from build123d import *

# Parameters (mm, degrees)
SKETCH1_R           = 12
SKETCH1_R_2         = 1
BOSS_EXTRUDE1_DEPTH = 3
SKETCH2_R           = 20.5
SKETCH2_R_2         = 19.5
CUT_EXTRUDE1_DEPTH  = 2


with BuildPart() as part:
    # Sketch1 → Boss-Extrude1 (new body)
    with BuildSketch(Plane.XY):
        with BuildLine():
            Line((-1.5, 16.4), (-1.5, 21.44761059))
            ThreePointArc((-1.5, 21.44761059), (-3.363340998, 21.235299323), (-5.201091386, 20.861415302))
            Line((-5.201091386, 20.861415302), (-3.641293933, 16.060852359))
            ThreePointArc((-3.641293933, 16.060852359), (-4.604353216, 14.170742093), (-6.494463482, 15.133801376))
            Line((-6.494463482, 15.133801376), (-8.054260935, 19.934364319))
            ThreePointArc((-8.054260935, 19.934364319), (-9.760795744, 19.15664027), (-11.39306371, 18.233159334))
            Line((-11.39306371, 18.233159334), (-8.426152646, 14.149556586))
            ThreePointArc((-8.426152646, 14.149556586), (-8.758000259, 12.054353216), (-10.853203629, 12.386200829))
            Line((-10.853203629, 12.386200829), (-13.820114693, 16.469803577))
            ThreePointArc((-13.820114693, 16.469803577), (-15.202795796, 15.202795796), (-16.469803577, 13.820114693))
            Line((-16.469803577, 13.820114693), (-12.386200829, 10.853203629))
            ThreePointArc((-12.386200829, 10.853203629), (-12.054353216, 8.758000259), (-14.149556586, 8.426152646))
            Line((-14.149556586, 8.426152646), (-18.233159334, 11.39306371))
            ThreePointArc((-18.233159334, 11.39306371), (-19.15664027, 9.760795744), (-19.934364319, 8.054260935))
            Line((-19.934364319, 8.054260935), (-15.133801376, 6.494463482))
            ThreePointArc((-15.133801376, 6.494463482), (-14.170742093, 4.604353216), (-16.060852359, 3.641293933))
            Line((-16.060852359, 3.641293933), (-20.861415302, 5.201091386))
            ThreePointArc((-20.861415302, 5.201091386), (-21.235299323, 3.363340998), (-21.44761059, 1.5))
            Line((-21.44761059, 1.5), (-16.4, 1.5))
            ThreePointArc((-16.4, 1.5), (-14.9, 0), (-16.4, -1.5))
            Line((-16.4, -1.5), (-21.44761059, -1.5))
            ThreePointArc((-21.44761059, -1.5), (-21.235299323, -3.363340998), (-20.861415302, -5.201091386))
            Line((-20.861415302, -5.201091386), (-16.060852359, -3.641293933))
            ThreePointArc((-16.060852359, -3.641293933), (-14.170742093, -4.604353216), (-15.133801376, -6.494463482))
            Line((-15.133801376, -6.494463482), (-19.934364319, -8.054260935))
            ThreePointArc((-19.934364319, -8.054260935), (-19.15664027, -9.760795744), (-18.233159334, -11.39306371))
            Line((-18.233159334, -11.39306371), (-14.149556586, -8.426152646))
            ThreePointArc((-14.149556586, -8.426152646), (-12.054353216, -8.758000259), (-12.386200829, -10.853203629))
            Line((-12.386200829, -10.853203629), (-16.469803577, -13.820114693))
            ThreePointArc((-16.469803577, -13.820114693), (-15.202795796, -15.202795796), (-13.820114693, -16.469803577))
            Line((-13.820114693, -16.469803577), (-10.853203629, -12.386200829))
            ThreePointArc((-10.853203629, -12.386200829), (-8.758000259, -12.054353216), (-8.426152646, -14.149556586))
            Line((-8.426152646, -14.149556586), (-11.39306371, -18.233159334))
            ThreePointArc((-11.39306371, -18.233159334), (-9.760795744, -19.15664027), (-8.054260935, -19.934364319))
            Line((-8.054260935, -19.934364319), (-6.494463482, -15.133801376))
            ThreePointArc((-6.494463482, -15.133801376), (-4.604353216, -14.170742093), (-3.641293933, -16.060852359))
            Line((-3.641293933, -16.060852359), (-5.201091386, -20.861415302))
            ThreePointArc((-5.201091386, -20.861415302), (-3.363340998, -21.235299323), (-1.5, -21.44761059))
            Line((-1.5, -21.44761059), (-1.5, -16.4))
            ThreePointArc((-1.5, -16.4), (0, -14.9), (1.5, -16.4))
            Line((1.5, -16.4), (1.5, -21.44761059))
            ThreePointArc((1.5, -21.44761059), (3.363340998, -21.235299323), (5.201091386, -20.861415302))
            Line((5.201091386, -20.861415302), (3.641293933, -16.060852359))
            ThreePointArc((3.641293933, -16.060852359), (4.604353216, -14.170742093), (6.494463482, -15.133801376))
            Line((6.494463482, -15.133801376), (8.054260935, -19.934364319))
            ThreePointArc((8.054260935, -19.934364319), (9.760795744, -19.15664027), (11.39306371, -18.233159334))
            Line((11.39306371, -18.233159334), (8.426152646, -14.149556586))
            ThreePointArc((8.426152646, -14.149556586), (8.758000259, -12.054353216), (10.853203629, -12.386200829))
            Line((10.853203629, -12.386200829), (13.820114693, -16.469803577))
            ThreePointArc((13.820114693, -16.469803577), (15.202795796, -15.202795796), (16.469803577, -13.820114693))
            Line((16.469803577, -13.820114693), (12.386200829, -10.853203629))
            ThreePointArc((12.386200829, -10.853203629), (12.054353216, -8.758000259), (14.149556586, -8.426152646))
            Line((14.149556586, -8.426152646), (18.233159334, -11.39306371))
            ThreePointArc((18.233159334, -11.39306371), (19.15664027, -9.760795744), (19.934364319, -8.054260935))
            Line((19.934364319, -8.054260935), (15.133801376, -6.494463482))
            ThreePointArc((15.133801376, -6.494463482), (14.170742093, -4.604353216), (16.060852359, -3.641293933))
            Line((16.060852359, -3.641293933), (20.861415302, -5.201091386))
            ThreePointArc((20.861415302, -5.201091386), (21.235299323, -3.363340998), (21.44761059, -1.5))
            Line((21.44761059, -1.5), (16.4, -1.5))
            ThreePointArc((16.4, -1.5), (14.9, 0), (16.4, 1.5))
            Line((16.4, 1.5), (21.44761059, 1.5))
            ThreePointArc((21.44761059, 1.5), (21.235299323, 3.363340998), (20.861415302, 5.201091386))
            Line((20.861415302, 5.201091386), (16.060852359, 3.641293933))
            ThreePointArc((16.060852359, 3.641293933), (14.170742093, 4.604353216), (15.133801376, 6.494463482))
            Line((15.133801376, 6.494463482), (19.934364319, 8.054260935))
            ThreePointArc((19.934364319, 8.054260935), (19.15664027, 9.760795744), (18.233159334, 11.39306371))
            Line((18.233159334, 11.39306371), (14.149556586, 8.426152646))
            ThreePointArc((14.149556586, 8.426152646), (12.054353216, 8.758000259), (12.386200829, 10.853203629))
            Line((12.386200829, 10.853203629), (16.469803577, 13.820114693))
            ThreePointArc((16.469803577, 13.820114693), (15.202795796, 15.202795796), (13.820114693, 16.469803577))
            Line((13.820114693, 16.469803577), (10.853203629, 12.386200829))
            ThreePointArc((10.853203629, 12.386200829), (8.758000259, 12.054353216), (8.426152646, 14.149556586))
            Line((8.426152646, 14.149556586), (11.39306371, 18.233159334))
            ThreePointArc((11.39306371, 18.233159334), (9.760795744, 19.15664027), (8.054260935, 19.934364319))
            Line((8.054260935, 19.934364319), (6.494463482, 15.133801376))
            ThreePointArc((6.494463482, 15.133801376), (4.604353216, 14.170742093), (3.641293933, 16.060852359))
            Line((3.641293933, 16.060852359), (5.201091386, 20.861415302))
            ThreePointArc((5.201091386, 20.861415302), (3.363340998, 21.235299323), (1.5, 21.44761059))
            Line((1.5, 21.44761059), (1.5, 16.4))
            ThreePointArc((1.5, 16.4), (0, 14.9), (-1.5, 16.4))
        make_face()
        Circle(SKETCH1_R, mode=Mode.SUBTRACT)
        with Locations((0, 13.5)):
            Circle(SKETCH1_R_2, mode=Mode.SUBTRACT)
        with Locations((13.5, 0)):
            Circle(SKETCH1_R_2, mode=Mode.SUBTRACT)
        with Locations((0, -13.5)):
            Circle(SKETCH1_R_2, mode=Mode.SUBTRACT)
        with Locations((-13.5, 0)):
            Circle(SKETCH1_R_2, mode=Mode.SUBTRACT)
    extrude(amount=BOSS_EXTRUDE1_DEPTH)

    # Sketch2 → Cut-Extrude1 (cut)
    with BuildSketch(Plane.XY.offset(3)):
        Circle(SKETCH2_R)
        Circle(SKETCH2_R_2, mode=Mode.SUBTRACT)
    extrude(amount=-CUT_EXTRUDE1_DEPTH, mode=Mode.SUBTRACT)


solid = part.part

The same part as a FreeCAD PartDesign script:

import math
import FreeCAD as App
import Part
import Sketcher
from FreeCAD import Vector
Q = App.Units.Quantity

doc = App.newDocument("Part")
body = doc.addObject("PartDesign::Body", "Body")

# Sketch on XY plane
sketch1 = doc.addObject("Sketcher::SketchObject", "Sketch")
body.addObject(sketch1)
sketch1.AttachmentSupport = (doc.XY_Plane, [""])
sketch1.MapMode = "FlatFace"
sketch1.addGeometry([
    Part.LineSegment(Vector(-1.5, 16.4, 0), Vector(-1.5, 21.447611, 0)),  # 0
    Part.ArcOfCircle(Part.Circle(Vector(0, 0, 0), Vector(0, 0, 1), 21.5), math.radians(94.00063), math.radians(103.99937)),  # 1
    Part.LineSegment(Vector(-5.201091, 20.861415, 0), Vector(-3.641294, 16.060852, 0)),  # 2
    Part.ArcOfCircle(Part.Circle(Vector(-5.067879, 15.597327, 0), Vector(0, 0, 1), 1.5), math.radians(-162), math.radians(18)),  # 3
    Part.LineSegment(Vector(-6.494463, 15.133801, 0), Vector(-8.054261, 19.934364, 0)),  # 4
    Part.ArcOfCircle(Part.Circle(Vector(0, 0, 0), Vector(0, 0, 1), 21.5), math.radians(112.00063), math.radians(121.99937)),  # 5
    Part.LineSegment(Vector(-11.393064, 18.233159, 0), Vector(-8.426153, 14.149557, 0)),  # 6
    Part.ArcOfCircle(Part.Circle(Vector(-9.639678, 13.267879, 0), Vector(0, 0, 1), 1.5), math.radians(-144), math.radians(36)),  # 7
    Part.LineSegment(Vector(-10.853204, 12.386201, 0), Vector(-13.820115, 16.469804, 0)),  # 8
    Part.ArcOfCircle(Part.Circle(Vector(0, 0, 0), Vector(0, 0, 1), 21.5), math.radians(130.00063), math.radians(139.99937)),  # 9
    Part.LineSegment(Vector(-16.469804, 13.820115, 0), Vector(-12.386201, 10.853204, 0)),  # 10
    Part.ArcOfCircle(Part.Circle(Vector(-13.267879, 9.639678, 0), Vector(0, 0, 1), 1.5), math.radians(-126), math.radians(54)),  # 11
    Part.LineSegment(Vector(-14.149557, 8.426153, 0), Vector(-18.233159, 11.393064, 0)),  # 12
    Part.ArcOfCircle(Part.Circle(Vector(0, 0, 0), Vector(0, 0, 1), 21.5), math.radians(148.00063), math.radians(157.99937)),  # 13
    Part.LineSegment(Vector(-19.934364, 8.054261, 0), Vector(-15.133801, 6.494463, 0)),  # 14
    Part.ArcOfCircle(Part.Circle(Vector(-15.597327, 5.067879, 0), Vector(0, 0, 1), 1.5), math.radians(-108), math.radians(72)),  # 15
    Part.LineSegment(Vector(-16.060852, 3.641294, 0), Vector(-20.861415, 5.201091, 0)),  # 16
    Part.ArcOfCircle(Part.Circle(Vector(0, 0, 0), Vector(0, 0, 1), 21.5), math.radians(166.00063), math.radians(175.99937)),  # 17
    Part.LineSegment(Vector(-21.447611, 1.5, 0), Vector(-16.4, 1.5, 0)),  # 18
    Part.ArcOfCircle(Part.Circle(Vector(-16.4, 0, 0), Vector(0, 0, 1), 1.5), math.radians(-90), math.radians(90)),  # 19
    Part.LineSegment(Vector(-16.4, -1.5, 0), Vector(-21.447611, -1.5, 0)),  # 20
    Part.ArcOfCircle(Part.Circle(Vector(0, 0, 0), Vector(0, 0, 1), 21.5), math.radians(-175.99937), math.radians(-166.00063)),  # 21
    Part.LineSegment(Vector(-20.861415, -5.201091, 0), Vector(-16.060852, -3.641294, 0)),  # 22
    Part.ArcOfCircle(Part.Circle(Vector(-15.597327, -5.067879, 0), Vector(0, 0, 1), 1.5), math.radians(-72), math.radians(108)),  # 23
    Part.LineSegment(Vector(-15.133801, -6.494463, 0), Vector(-19.934364, -8.054261, 0)),  # 24
    Part.ArcOfCircle(Part.Circle(Vector(0, 0, 0), Vector(0, 0, 1), 21.5), math.radians(-157.99937), math.radians(-148.00063)),  # 25
    Part.LineSegment(Vector(-18.233159, -11.393064, 0), Vector(-14.149557, -8.426153, 0)),  # 26
    Part.ArcOfCircle(Part.Circle(Vector(-13.267879, -9.639678, 0), Vector(0, 0, 1), 1.5), math.radians(-54), math.radians(126)),  # 27
    Part.LineSegment(Vector(-12.386201, -10.853204, 0), Vector(-16.469804, -13.820115, 0)),  # 28
    Part.ArcOfCircle(Part.Circle(Vector(0, 0, 0), Vector(0, 0, 1), 21.5), math.radians(-139.99937), math.radians(-130.00063)),  # 29
    Part.LineSegment(Vector(-13.820115, -16.469804, 0), Vector(-10.853204, -12.386201, 0)),  # 30
    Part.ArcOfCircle(Part.Circle(Vector(-9.639678, -13.267879, 0), Vector(0, 0, 1), 1.5), math.radians(-36), math.radians(144)),  # 31
    Part.LineSegment(Vector(-8.426153, -14.149557, 0), Vector(-11.393064, -18.233159, 0)),  # 32
    Part.ArcOfCircle(Part.Circle(Vector(0, 0, 0), Vector(0, 0, 1), 21.5), math.radians(-121.99937), math.radians(-112.00063)),  # 33
    Part.LineSegment(Vector(-8.054261, -19.934364, 0), Vector(-6.494463, -15.133801, 0)),  # 34
    Part.ArcOfCircle(Part.Circle(Vector(-5.067879, -15.597327, 0), Vector(0, 0, 1), 1.5), math.radians(-18), math.radians(162)),  # 35
    Part.LineSegment(Vector(-3.641294, -16.060852, 0), Vector(-5.201091, -20.861415, 0)),  # 36
    Part.ArcOfCircle(Part.Circle(Vector(0, 0, 0), Vector(0, 0, 1), 21.5), math.radians(-103.99937), math.radians(-94.00063)),  # 37
    Part.LineSegment(Vector(-1.5, -21.447611, 0), Vector(-1.5, -16.4, 0)),  # 38
    Part.ArcOfCircle(Part.Circle(Vector(0, -16.4, 0), Vector(0, 0, 1), 1.5), math.radians(0), math.radians(180)),  # 39
    Part.LineSegment(Vector(1.5, -16.4, 0), Vector(1.5, -21.447611, 0)),  # 40
    Part.ArcOfCircle(Part.Circle(Vector(0, 0, 0), Vector(0, 0, 1), 21.5), math.radians(-85.99937), math.radians(-76.00063)),  # 41
    Part.LineSegment(Vector(5.201091, -20.861415, 0), Vector(3.641294, -16.060852, 0)),  # 42
    Part.ArcOfCircle(Part.Circle(Vector(5.067879, -15.597327, 0), Vector(0, 0, 1), 1.5), math.radians(18), math.radians(198)),  # 43
    Part.LineSegment(Vector(6.494463, -15.133801, 0), Vector(8.054261, -19.934364, 0)),  # 44
    Part.ArcOfCircle(Part.Circle(Vector(0, 0, 0), Vector(0, 0, 1), 21.5), math.radians(-67.99937), math.radians(-58.00063)),  # 45
    Part.LineSegment(Vector(11.393064, -18.233159, 0), Vector(8.426153, -14.149557, 0)),  # 46
    Part.ArcOfCircle(Part.Circle(Vector(9.639678, -13.267879, 0), Vector(0, 0, 1), 1.5), math.radians(36), math.radians(216)),  # 47
    Part.LineSegment(Vector(10.853204, -12.386201, 0), Vector(13.820115, -16.469804, 0)),  # 48
    Part.ArcOfCircle(Part.Circle(Vector(0, 0, 0), Vector(0, 0, 1), 21.5), math.radians(-49.99937), math.radians(-40.00063)),  # 49
    Part.LineSegment(Vector(16.469804, -13.820115, 0), Vector(12.386201, -10.853204, 0)),  # 50
    Part.ArcOfCircle(Part.Circle(Vector(13.267879, -9.639678, 0), Vector(0, 0, 1), 1.5), math.radians(54), math.radians(234)),  # 51
    Part.LineSegment(Vector(14.149557, -8.426153, 0), Vector(18.233159, -11.393064, 0)),  # 52
    Part.ArcOfCircle(Part.Circle(Vector(0, 0, 0), Vector(0, 0, 1), 21.5), math.radians(-31.99937), math.radians(-22.00063)),  # 53
    Part.LineSegment(Vector(19.934364, -8.054261, 0), Vector(15.133801, -6.494463, 0)),  # 54
    Part.ArcOfCircle(Part.Circle(Vector(15.597327, -5.067879, 0), Vector(0, 0, 1), 1.5), math.radians(72), math.radians(252)),  # 55
    Part.LineSegment(Vector(16.060852, -3.641294, 0), Vector(20.861415, -5.201091, 0)),  # 56
    Part.ArcOfCircle(Part.Circle(Vector(0, 0, 0), Vector(0, 0, 1), 21.5), math.radians(-13.99937), math.radians(-4.00063)),  # 57
    Part.LineSegment(Vector(21.447611, -1.5, 0), Vector(16.4, -1.5, 0)),  # 58
    Part.ArcOfCircle(Part.Circle(Vector(16.4, 0, 0), Vector(0, 0, 1), 1.5), math.radians(90), math.radians(270)),  # 59
    Part.LineSegment(Vector(16.4, 1.5, 0), Vector(21.447611, 1.5, 0)),  # 60
    Part.ArcOfCircle(Part.Circle(Vector(0, 0, 0), Vector(0, 0, 1), 21.5), math.radians(4.00063), math.radians(13.99937)),  # 61
    Part.LineSegment(Vector(20.861415, 5.201091, 0), Vector(16.060852, 3.641294, 0)),  # 62
    Part.ArcOfCircle(Part.Circle(Vector(15.597327, 5.067879, 0), Vector(0, 0, 1), 1.5), math.radians(108), math.radians(288)),  # 63
    Part.LineSegment(Vector(15.133801, 6.494463, 0), Vector(19.934364, 8.054261, 0)),  # 64
    Part.ArcOfCircle(Part.Circle(Vector(0, 0, 0), Vector(0, 0, 1), 21.5), math.radians(22.00063), math.radians(31.99937)),  # 65
    Part.LineSegment(Vector(18.233159, 11.393064, 0), Vector(14.149557, 8.426153, 0)),  # 66
    Part.ArcOfCircle(Part.Circle(Vector(13.267879, 9.639678, 0), Vector(0, 0, 1), 1.5), math.radians(126), math.radians(306)),  # 67
    Part.LineSegment(Vector(12.386201, 10.853204, 0), Vector(16.469804, 13.820115, 0)),  # 68
    Part.ArcOfCircle(Part.Circle(Vector(0, 0, 0), Vector(0, 0, 1), 21.5), math.radians(40.00063), math.radians(49.99937)),  # 69
    Part.LineSegment(Vector(13.820115, 16.469804, 0), Vector(10.853204, 12.386201, 0)),  # 70
    Part.ArcOfCircle(Part.Circle(Vector(9.639678, 13.267879, 0), Vector(0, 0, 1), 1.5), math.radians(144), math.radians(324)),  # 71
    Part.LineSegment(Vector(8.426153, 14.149557, 0), Vector(11.393064, 18.233159, 0)),  # 72
    Part.ArcOfCircle(Part.Circle(Vector(0, 0, 0), Vector(0, 0, 1), 21.5), math.radians(58.00063), math.radians(67.99937)),  # 73
    Part.LineSegment(Vector(8.054261, 19.934364, 0), Vector(6.494463, 15.133801, 0)),  # 74
    Part.ArcOfCircle(Part.Circle(Vector(5.067879, 15.597327, 0), Vector(0, 0, 1), 1.5), math.radians(162), math.radians(342)),  # 75
    Part.LineSegment(Vector(3.641294, 16.060852, 0), Vector(5.201091, 20.861415, 0)),  # 76
    Part.ArcOfCircle(Part.Circle(Vector(0, 0, 0), Vector(0, 0, 1), 21.5), math.radians(76.00063), math.radians(85.99937)),  # 77
    Part.LineSegment(Vector(1.5, 21.447611, 0), Vector(1.5, 16.4, 0)),  # 78
    Part.ArcOfCircle(Part.Circle(Vector(0, 16.4, 0), Vector(0, 0, 1), 1.5), math.radians(180), math.radians(360)),  # 79
    Part.Circle(Vector(0, -13.5, 0), Vector(0, 0, 1), 1),  # 80
    Part.Circle(Vector(-13.5, 0, 0), Vector(0, 0, 1), 1),  # 81
    Part.Circle(Vector(0, 0, 0), Vector(0, 0, 1), 12),  # 82
    Part.Circle(Vector(13.5, 0, 0), Vector(0, 0, 1), 1),  # 83
    Part.Circle(Vector(0, 13.5, 0), Vector(0, 0, 1), 1),  # 84
], False)
sketch1.addConstraint([
    Sketcher.Constraint("Coincident", 0, 2, 1, 1),
    Sketcher.Constraint("Coincident", 1, 2, 2, 1),
    Sketcher.Constraint("Tangent", 2, 2, 3, 2),
    Sketcher.Constraint("Tangent", 3, 1, 4, 1),
    Sketcher.Constraint("Coincident", 4, 2, 5, 1),
    Sketcher.Constraint("Coincident", 5, 2, 6, 1),
    Sketcher.Constraint("Tangent", 6, 2, 7, 2),
    Sketcher.Constraint("Tangent", 7, 1, 8, 1),
    Sketcher.Constraint("Coincident", 8, 2, 9, 1),
    Sketcher.Constraint("Coincident", 9, 2, 10, 1),
    Sketcher.Constraint("Tangent", 10, 2, 11, 2),
    Sketcher.Constraint("Tangent", 11, 1, 12, 1),
    Sketcher.Constraint("Coincident", 12, 2, 13, 1),
    Sketcher.Constraint("Coincident", 13, 2, 14, 1),
    Sketcher.Constraint("Tangent", 14, 2, 15, 2),
    Sketcher.Constraint("Tangent", 15, 1, 16, 1),
    Sketcher.Constraint("Coincident", 16, 2, 17, 1),
    Sketcher.Constraint("Coincident", 17, 2, 18, 1),
    Sketcher.Constraint("Tangent", 18, 2, 19, 2),
    Sketcher.Constraint("Tangent", 19, 1, 20, 1),
    Sketcher.Constraint("Coincident", 20, 2, 21, 1),
    Sketcher.Constraint("Coincident", 21, 2, 22, 1),
    Sketcher.Constraint("Tangent", 22, 2, 23, 2),
    Sketcher.Constraint("Tangent", 23, 1, 24, 1),
    Sketcher.Constraint("Coincident", 24, 2, 25, 1),
    Sketcher.Constraint("Coincident", 25, 2, 26, 1),
    Sketcher.Constraint("Tangent", 26, 2, 27, 2),
    Sketcher.Constraint("Tangent", 27, 1, 28, 1),
    Sketcher.Constraint("Coincident", 28, 2, 29, 1),
    Sketcher.Constraint("Coincident", 29, 2, 30, 1),
    Sketcher.Constraint("Tangent", 30, 2, 31, 2),
    Sketcher.Constraint("Tangent", 31, 1, 32, 1),
    Sketcher.Constraint("Coincident", 32, 2, 33, 1),
    Sketcher.Constraint("Coincident", 33, 2, 34, 1),
    Sketcher.Constraint("Tangent", 34, 2, 35, 2),
    Sketcher.Constraint("Tangent", 35, 1, 36, 1),
    Sketcher.Constraint("Coincident", 36, 2, 37, 1),
    Sketcher.Constraint("Coincident", 37, 2, 38, 1),
    Sketcher.Constraint("Tangent", 38, 2, 39, 2),
    Sketcher.Constraint("Tangent", 39, 1, 40, 1),
    Sketcher.Constraint("Coincident", 40, 2, 41, 1),
    Sketcher.Constraint("Coincident", 41, 2, 42, 1),
    Sketcher.Constraint("Tangent", 42, 2, 43, 2),
    Sketcher.Constraint("Tangent", 43, 1, 44, 1),
    Sketcher.Constraint("Coincident", 44, 2, 45, 1),
    Sketcher.Constraint("Coincident", 45, 2, 46, 1),
    Sketcher.Constraint("Tangent", 46, 2, 47, 2),
    Sketcher.Constraint("Tangent", 47, 1, 48, 1),
    Sketcher.Constraint("Coincident", 48, 2, 49, 1),
    Sketcher.Constraint("Coincident", 49, 2, 50, 1),
    Sketcher.Constraint("Tangent", 50, 2, 51, 2),
    Sketcher.Constraint("Tangent", 51, 1, 52, 1),
    Sketcher.Constraint("Coincident", 52, 2, 53, 1),
    Sketcher.Constraint("Coincident", 53, 2, 54, 1),
    Sketcher.Constraint("Tangent", 54, 2, 55, 2),
    Sketcher.Constraint("Tangent", 55, 1, 56, 1),
    Sketcher.Constraint("Coincident", 56, 2, 57, 1),
    Sketcher.Constraint("Coincident", 57, 2, 58, 1),
    Sketcher.Constraint("Tangent", 58, 2, 59, 2),
    Sketcher.Constraint("Tangent", 59, 1, 60, 1),
    Sketcher.Constraint("Coincident", 60, 2, 61, 1),
    Sketcher.Constraint("Coincident", 61, 2, 62, 1),
    Sketcher.Constraint("Tangent", 62, 2, 63, 2),
    Sketcher.Constraint("Tangent", 63, 1, 64, 1),
    Sketcher.Constraint("Coincident", 64, 2, 65, 1),
    Sketcher.Constraint("Coincident", 65, 2, 66, 1),
    Sketcher.Constraint("Tangent", 66, 2, 67, 2),
    Sketcher.Constraint("Tangent", 67, 1, 68, 1),
    Sketcher.Constraint("Coincident", 68, 2, 69, 1),
    Sketcher.Constraint("Coincident", 69, 2, 70, 1),
    Sketcher.Constraint("Tangent", 70, 2, 71, 2),
    Sketcher.Constraint("Tangent", 71, 1, 72, 1),
    Sketcher.Constraint("Coincident", 72, 2, 73, 1),
    Sketcher.Constraint("Coincident", 73, 2, 74, 1),
    Sketcher.Constraint("Tangent", 74, 2, 75, 2),
    Sketcher.Constraint("Tangent", 75, 1, 76, 1),
    Sketcher.Constraint("Coincident", 76, 2, 77, 1),
    Sketcher.Constraint("Coincident", 77, 2, 78, 1),
    Sketcher.Constraint("Tangent", 78, 2, 79, 2),
    Sketcher.Constraint("Tangent", 79, 1, 0, 1),
    Sketcher.Constraint("Vertical", 0),
    Sketcher.Constraint("Horizontal", 18),
    Sketcher.Constraint("Horizontal", 20),
    Sketcher.Constraint("Vertical", 38),
    Sketcher.Constraint("Vertical", 40),
    Sketcher.Constraint("Horizontal", 58),
    Sketcher.Constraint("Horizontal", 60),
    Sketcher.Constraint("Vertical", 78),
    Sketcher.Constraint("Coincident", 1, 3, -1, 1),
    Sketcher.Constraint("Coincident", 5, 3, -1, 1),
    Sketcher.Constraint("Coincident", 9, 3, -1, 1),
    Sketcher.Constraint("Coincident", 13, 3, -1, 1),
    Sketcher.Constraint("Coincident", 17, 3, -1, 1),
    Sketcher.Constraint("Coincident", 21, 3, -1, 1),
    Sketcher.Constraint("Coincident", 25, 3, -1, 1),
    Sketcher.Constraint("Coincident", 29, 3, -1, 1),
    Sketcher.Constraint("Coincident", 33, 3, -1, 1),
    Sketcher.Constraint("Coincident", 37, 3, -1, 1),
    Sketcher.Constraint("Coincident", 41, 3, -1, 1),
    Sketcher.Constraint("Coincident", 45, 3, -1, 1),
    Sketcher.Constraint("Coincident", 49, 3, -1, 1),
    Sketcher.Constraint("Coincident", 53, 3, -1, 1),
    Sketcher.Constraint("Coincident", 57, 3, -1, 1),
    Sketcher.Constraint("Coincident", 61, 3, -1, 1),
    Sketcher.Constraint("Coincident", 65, 3, -1, 1),
    Sketcher.Constraint("Coincident", 69, 3, -1, 1),
    Sketcher.Constraint("Coincident", 73, 3, -1, 1),
    Sketcher.Constraint("Coincident", 77, 3, -1, 1),
    Sketcher.Constraint("Coincident", 82, 3, -1, 1),
    Sketcher.Constraint("Equal", 1, 5),
    Sketcher.Constraint("Equal", 3, 7),
    Sketcher.Constraint("Equal", 5, 9),
    Sketcher.Constraint("Equal", 7, 11),
    Sketcher.Constraint("Equal", 9, 13),
    Sketcher.Constraint("Equal", 11, 15),
    Sketcher.Constraint("Equal", 13, 17),
    Sketcher.Constraint("Equal", 15, 19),
    Sketcher.Constraint("Equal", 17, 21),
    Sketcher.Constraint("Equal", 19, 23),
    Sketcher.Constraint("Equal", 21, 25),
    Sketcher.Constraint("Equal", 23, 27),
    Sketcher.Constraint("Equal", 25, 29),
    Sketcher.Constraint("Equal", 27, 31),
    Sketcher.Constraint("Equal", 29, 33),
    Sketcher.Constraint("Equal", 31, 35),
    Sketcher.Constraint("Equal", 33, 37),
    Sketcher.Constraint("Equal", 35, 39),
    Sketcher.Constraint("Equal", 37, 41),
    Sketcher.Constraint("Equal", 39, 43),
    Sketcher.Constraint("Equal", 41, 45),
    Sketcher.Constraint("Equal", 43, 47),
    Sketcher.Constraint("Equal", 45, 49),
    Sketcher.Constraint("Equal", 47, 51),
    Sketcher.Constraint("Equal", 49, 53),
    Sketcher.Constraint("Equal", 51, 55),
    Sketcher.Constraint("Equal", 53, 57),
    Sketcher.Constraint("Equal", 55, 59),
    Sketcher.Constraint("Equal", 57, 61),
    Sketcher.Constraint("Equal", 59, 63),
    Sketcher.Constraint("Equal", 61, 65),
    Sketcher.Constraint("Equal", 63, 67),
    Sketcher.Constraint("Equal", 65, 69),
    Sketcher.Constraint("Equal", 67, 71),
    Sketcher.Constraint("Equal", 69, 73),
    Sketcher.Constraint("Equal", 71, 75),
    Sketcher.Constraint("Equal", 73, 77),
    Sketcher.Constraint("Equal", 75, 79),
    Sketcher.Constraint("Equal", 80, 81),
    Sketcher.Constraint("Equal", 81, 83),
    Sketcher.Constraint("Equal", 83, 84),
    Sketcher.Constraint("Symmetric", 3, 3, 43, 3, -1, 1),
    Sketcher.Constraint("Symmetric", 7, 3, 47, 3, -1, 1),
    Sketcher.Constraint("Symmetric", 11, 3, 51, 3, -1, 1),
    Sketcher.Constraint("Symmetric", 15, 3, 55, 3, -1, 1),
    Sketcher.Constraint("Symmetric", 19, 3, 59, 3, -1, 1),
    Sketcher.Constraint("Symmetric", 23, 3, 63, 3, -1, 1),
    Sketcher.Constraint("Symmetric", 27, 3, 67, 3, -1, 1),
    Sketcher.Constraint("Symmetric", 31, 3, 71, 3, -1, 1),
    Sketcher.Constraint("Symmetric", 35, 3, 75, 3, -1, 1),
    Sketcher.Constraint("Symmetric", 39, 3, 79, 3, -1, 1),
    Sketcher.Constraint("Symmetric", 81, 3, 83, 3, -1, 1),
    Sketcher.Constraint("Symmetric", 80, 3, 84, 3, -1, 1),
    Sketcher.Constraint("Symmetric", 35, 3, 43, 3, -2),
    Sketcher.Constraint("Symmetric", 31, 3, 47, 3, -2),
    Sketcher.Constraint("Symmetric", 27, 3, 51, 3, -2),
    Sketcher.Constraint("Symmetric", 23, 3, 55, 3, -2),
    Sketcher.Constraint("PointOnObject", 19, 3, -1),
    Sketcher.Constraint("PointOnObject", 39, 3, -2),
    Sketcher.Constraint("PointOnObject", 80, 3, -2),
    Sketcher.Constraint("PointOnObject", 81, 3, -1),
    Sketcher.Constraint("Parallel", 2, 4),
    Sketcher.Constraint("Parallel", 6, 8),
    Sketcher.Constraint("Parallel", 10, 12),
    Sketcher.Constraint("Parallel", 14, 16),
    Sketcher.Constraint("Perpendicular", 4, 22),
    Sketcher.Constraint("Parallel", 22, 24),
    Sketcher.Constraint("Perpendicular", 8, 26),
    Sketcher.Constraint("Parallel", 26, 28),
    Sketcher.Constraint("Perpendicular", 12, 30),
    Sketcher.Constraint("Parallel", 30, 32),
    Sketcher.Constraint("Perpendicular", 16, 34),
    Sketcher.Constraint("Parallel", 34, 36),
    Sketcher.Constraint("Perpendicular", 24, 42),
    Sketcher.Constraint("Parallel", 42, 44),
    Sketcher.Constraint("Perpendicular", 28, 46),
    Sketcher.Constraint("Parallel", 46, 48),
    Sketcher.Constraint("Perpendicular", 32, 50),
    Sketcher.Constraint("Parallel", 50, 52),
    Sketcher.Constraint("Perpendicular", 36, 54),
    Sketcher.Constraint("Parallel", 54, 56),
    Sketcher.Constraint("Perpendicular", 44, 62),
    Sketcher.Constraint("Parallel", 62, 64),
    Sketcher.Constraint("Perpendicular", 48, 66),
    Sketcher.Constraint("Parallel", 66, 68),
    Sketcher.Constraint("Perpendicular", 52, 70),
    Sketcher.Constraint("Parallel", 70, 72),
    Sketcher.Constraint("Perpendicular", 56, 74),
    Sketcher.Constraint("Parallel", 74, 76),
    Sketcher.Constraint("Horizontal", 36, 2, 41, 2),
    Sketcher.Constraint("Horizontal", 32, 2, 45, 2),
    Sketcher.Constraint("Equal", 60, 0),
    Sketcher.Constraint("Equal", 2, 4),
    Sketcher.Constraint("Equal", 4, 6),
    Sketcher.Constraint("Equal", 6, 8),
    Sketcher.Constraint("Equal", 8, 10),
    Sketcher.Constraint("Equal", 10, 12),
    Sketcher.Constraint("Equal", 12, 14),
    Sketcher.Constraint("Equal", 14, 16),
    Sketcher.Constraint("Diameter", 80, Q("2 mm")),
    Sketcher.Constraint("Diameter", 82, Q("24 mm")),
    Sketcher.Constraint("Radius", 1, Q("21.5 mm")),
    Sketcher.Constraint("Radius", 3, Q("1.5 mm")),
    Sketcher.Constraint("Angle", 2, Q("-72 deg")),
    Sketcher.Constraint("Angle", 6, Q("-54 deg")),
    Sketcher.Constraint("DistanceX", 19, 3, -1, 1, Q("16.4 mm")),
    Sketcher.Constraint("DistanceY", 80, 3, -1, 1, Q("13.5 mm")),
    Sketcher.Constraint("DistanceX", 81, 3, -1, 1, Q("13.5 mm")),
    Sketcher.Constraint("DistanceY", -1, 1, 3, 1, Q("15.133801 mm")),
])
pad1 = doc.addObject("PartDesign::Pad", "Pad")
body.addObject(pad1)
pad1.Profile = sketch1
pad1.Length = 3

# Sketch on XY plane
sketch2 = doc.addObject("Sketcher::SketchObject", "Sketch001")
body.addObject(sketch2)
sketch2.AttachmentSupport = (doc.XY_Plane, [""])
sketch2.MapMode = "FlatFace"
sketch2.AttachmentOffset = App.Placement(Vector(0, 0, 3), App.Rotation())
sketch2.addGeometry([
    Part.Circle(Vector(0, 0, 0), Vector(0, 0, 1), 20.5),
    Part.Circle(Vector(0, 0, 0), Vector(0, 0, 1), 19.5),
], False)
sketch2.addConstraint([
    Sketcher.Constraint("Coincident", 0, 3, -1, 1),
    Sketcher.Constraint("Coincident", 1, 3, -1, 1),
    Sketcher.Constraint("Diameter", 0, Q("41 mm")),
    Sketcher.Constraint("Diameter", 1, Q("39 mm")),
])
pocket1 = doc.addObject("PartDesign::Pocket", "Pocket")
body.addObject(pocket1)
pocket1.Profile = sketch2
pocket1.Length = 2

doc.recompute()
